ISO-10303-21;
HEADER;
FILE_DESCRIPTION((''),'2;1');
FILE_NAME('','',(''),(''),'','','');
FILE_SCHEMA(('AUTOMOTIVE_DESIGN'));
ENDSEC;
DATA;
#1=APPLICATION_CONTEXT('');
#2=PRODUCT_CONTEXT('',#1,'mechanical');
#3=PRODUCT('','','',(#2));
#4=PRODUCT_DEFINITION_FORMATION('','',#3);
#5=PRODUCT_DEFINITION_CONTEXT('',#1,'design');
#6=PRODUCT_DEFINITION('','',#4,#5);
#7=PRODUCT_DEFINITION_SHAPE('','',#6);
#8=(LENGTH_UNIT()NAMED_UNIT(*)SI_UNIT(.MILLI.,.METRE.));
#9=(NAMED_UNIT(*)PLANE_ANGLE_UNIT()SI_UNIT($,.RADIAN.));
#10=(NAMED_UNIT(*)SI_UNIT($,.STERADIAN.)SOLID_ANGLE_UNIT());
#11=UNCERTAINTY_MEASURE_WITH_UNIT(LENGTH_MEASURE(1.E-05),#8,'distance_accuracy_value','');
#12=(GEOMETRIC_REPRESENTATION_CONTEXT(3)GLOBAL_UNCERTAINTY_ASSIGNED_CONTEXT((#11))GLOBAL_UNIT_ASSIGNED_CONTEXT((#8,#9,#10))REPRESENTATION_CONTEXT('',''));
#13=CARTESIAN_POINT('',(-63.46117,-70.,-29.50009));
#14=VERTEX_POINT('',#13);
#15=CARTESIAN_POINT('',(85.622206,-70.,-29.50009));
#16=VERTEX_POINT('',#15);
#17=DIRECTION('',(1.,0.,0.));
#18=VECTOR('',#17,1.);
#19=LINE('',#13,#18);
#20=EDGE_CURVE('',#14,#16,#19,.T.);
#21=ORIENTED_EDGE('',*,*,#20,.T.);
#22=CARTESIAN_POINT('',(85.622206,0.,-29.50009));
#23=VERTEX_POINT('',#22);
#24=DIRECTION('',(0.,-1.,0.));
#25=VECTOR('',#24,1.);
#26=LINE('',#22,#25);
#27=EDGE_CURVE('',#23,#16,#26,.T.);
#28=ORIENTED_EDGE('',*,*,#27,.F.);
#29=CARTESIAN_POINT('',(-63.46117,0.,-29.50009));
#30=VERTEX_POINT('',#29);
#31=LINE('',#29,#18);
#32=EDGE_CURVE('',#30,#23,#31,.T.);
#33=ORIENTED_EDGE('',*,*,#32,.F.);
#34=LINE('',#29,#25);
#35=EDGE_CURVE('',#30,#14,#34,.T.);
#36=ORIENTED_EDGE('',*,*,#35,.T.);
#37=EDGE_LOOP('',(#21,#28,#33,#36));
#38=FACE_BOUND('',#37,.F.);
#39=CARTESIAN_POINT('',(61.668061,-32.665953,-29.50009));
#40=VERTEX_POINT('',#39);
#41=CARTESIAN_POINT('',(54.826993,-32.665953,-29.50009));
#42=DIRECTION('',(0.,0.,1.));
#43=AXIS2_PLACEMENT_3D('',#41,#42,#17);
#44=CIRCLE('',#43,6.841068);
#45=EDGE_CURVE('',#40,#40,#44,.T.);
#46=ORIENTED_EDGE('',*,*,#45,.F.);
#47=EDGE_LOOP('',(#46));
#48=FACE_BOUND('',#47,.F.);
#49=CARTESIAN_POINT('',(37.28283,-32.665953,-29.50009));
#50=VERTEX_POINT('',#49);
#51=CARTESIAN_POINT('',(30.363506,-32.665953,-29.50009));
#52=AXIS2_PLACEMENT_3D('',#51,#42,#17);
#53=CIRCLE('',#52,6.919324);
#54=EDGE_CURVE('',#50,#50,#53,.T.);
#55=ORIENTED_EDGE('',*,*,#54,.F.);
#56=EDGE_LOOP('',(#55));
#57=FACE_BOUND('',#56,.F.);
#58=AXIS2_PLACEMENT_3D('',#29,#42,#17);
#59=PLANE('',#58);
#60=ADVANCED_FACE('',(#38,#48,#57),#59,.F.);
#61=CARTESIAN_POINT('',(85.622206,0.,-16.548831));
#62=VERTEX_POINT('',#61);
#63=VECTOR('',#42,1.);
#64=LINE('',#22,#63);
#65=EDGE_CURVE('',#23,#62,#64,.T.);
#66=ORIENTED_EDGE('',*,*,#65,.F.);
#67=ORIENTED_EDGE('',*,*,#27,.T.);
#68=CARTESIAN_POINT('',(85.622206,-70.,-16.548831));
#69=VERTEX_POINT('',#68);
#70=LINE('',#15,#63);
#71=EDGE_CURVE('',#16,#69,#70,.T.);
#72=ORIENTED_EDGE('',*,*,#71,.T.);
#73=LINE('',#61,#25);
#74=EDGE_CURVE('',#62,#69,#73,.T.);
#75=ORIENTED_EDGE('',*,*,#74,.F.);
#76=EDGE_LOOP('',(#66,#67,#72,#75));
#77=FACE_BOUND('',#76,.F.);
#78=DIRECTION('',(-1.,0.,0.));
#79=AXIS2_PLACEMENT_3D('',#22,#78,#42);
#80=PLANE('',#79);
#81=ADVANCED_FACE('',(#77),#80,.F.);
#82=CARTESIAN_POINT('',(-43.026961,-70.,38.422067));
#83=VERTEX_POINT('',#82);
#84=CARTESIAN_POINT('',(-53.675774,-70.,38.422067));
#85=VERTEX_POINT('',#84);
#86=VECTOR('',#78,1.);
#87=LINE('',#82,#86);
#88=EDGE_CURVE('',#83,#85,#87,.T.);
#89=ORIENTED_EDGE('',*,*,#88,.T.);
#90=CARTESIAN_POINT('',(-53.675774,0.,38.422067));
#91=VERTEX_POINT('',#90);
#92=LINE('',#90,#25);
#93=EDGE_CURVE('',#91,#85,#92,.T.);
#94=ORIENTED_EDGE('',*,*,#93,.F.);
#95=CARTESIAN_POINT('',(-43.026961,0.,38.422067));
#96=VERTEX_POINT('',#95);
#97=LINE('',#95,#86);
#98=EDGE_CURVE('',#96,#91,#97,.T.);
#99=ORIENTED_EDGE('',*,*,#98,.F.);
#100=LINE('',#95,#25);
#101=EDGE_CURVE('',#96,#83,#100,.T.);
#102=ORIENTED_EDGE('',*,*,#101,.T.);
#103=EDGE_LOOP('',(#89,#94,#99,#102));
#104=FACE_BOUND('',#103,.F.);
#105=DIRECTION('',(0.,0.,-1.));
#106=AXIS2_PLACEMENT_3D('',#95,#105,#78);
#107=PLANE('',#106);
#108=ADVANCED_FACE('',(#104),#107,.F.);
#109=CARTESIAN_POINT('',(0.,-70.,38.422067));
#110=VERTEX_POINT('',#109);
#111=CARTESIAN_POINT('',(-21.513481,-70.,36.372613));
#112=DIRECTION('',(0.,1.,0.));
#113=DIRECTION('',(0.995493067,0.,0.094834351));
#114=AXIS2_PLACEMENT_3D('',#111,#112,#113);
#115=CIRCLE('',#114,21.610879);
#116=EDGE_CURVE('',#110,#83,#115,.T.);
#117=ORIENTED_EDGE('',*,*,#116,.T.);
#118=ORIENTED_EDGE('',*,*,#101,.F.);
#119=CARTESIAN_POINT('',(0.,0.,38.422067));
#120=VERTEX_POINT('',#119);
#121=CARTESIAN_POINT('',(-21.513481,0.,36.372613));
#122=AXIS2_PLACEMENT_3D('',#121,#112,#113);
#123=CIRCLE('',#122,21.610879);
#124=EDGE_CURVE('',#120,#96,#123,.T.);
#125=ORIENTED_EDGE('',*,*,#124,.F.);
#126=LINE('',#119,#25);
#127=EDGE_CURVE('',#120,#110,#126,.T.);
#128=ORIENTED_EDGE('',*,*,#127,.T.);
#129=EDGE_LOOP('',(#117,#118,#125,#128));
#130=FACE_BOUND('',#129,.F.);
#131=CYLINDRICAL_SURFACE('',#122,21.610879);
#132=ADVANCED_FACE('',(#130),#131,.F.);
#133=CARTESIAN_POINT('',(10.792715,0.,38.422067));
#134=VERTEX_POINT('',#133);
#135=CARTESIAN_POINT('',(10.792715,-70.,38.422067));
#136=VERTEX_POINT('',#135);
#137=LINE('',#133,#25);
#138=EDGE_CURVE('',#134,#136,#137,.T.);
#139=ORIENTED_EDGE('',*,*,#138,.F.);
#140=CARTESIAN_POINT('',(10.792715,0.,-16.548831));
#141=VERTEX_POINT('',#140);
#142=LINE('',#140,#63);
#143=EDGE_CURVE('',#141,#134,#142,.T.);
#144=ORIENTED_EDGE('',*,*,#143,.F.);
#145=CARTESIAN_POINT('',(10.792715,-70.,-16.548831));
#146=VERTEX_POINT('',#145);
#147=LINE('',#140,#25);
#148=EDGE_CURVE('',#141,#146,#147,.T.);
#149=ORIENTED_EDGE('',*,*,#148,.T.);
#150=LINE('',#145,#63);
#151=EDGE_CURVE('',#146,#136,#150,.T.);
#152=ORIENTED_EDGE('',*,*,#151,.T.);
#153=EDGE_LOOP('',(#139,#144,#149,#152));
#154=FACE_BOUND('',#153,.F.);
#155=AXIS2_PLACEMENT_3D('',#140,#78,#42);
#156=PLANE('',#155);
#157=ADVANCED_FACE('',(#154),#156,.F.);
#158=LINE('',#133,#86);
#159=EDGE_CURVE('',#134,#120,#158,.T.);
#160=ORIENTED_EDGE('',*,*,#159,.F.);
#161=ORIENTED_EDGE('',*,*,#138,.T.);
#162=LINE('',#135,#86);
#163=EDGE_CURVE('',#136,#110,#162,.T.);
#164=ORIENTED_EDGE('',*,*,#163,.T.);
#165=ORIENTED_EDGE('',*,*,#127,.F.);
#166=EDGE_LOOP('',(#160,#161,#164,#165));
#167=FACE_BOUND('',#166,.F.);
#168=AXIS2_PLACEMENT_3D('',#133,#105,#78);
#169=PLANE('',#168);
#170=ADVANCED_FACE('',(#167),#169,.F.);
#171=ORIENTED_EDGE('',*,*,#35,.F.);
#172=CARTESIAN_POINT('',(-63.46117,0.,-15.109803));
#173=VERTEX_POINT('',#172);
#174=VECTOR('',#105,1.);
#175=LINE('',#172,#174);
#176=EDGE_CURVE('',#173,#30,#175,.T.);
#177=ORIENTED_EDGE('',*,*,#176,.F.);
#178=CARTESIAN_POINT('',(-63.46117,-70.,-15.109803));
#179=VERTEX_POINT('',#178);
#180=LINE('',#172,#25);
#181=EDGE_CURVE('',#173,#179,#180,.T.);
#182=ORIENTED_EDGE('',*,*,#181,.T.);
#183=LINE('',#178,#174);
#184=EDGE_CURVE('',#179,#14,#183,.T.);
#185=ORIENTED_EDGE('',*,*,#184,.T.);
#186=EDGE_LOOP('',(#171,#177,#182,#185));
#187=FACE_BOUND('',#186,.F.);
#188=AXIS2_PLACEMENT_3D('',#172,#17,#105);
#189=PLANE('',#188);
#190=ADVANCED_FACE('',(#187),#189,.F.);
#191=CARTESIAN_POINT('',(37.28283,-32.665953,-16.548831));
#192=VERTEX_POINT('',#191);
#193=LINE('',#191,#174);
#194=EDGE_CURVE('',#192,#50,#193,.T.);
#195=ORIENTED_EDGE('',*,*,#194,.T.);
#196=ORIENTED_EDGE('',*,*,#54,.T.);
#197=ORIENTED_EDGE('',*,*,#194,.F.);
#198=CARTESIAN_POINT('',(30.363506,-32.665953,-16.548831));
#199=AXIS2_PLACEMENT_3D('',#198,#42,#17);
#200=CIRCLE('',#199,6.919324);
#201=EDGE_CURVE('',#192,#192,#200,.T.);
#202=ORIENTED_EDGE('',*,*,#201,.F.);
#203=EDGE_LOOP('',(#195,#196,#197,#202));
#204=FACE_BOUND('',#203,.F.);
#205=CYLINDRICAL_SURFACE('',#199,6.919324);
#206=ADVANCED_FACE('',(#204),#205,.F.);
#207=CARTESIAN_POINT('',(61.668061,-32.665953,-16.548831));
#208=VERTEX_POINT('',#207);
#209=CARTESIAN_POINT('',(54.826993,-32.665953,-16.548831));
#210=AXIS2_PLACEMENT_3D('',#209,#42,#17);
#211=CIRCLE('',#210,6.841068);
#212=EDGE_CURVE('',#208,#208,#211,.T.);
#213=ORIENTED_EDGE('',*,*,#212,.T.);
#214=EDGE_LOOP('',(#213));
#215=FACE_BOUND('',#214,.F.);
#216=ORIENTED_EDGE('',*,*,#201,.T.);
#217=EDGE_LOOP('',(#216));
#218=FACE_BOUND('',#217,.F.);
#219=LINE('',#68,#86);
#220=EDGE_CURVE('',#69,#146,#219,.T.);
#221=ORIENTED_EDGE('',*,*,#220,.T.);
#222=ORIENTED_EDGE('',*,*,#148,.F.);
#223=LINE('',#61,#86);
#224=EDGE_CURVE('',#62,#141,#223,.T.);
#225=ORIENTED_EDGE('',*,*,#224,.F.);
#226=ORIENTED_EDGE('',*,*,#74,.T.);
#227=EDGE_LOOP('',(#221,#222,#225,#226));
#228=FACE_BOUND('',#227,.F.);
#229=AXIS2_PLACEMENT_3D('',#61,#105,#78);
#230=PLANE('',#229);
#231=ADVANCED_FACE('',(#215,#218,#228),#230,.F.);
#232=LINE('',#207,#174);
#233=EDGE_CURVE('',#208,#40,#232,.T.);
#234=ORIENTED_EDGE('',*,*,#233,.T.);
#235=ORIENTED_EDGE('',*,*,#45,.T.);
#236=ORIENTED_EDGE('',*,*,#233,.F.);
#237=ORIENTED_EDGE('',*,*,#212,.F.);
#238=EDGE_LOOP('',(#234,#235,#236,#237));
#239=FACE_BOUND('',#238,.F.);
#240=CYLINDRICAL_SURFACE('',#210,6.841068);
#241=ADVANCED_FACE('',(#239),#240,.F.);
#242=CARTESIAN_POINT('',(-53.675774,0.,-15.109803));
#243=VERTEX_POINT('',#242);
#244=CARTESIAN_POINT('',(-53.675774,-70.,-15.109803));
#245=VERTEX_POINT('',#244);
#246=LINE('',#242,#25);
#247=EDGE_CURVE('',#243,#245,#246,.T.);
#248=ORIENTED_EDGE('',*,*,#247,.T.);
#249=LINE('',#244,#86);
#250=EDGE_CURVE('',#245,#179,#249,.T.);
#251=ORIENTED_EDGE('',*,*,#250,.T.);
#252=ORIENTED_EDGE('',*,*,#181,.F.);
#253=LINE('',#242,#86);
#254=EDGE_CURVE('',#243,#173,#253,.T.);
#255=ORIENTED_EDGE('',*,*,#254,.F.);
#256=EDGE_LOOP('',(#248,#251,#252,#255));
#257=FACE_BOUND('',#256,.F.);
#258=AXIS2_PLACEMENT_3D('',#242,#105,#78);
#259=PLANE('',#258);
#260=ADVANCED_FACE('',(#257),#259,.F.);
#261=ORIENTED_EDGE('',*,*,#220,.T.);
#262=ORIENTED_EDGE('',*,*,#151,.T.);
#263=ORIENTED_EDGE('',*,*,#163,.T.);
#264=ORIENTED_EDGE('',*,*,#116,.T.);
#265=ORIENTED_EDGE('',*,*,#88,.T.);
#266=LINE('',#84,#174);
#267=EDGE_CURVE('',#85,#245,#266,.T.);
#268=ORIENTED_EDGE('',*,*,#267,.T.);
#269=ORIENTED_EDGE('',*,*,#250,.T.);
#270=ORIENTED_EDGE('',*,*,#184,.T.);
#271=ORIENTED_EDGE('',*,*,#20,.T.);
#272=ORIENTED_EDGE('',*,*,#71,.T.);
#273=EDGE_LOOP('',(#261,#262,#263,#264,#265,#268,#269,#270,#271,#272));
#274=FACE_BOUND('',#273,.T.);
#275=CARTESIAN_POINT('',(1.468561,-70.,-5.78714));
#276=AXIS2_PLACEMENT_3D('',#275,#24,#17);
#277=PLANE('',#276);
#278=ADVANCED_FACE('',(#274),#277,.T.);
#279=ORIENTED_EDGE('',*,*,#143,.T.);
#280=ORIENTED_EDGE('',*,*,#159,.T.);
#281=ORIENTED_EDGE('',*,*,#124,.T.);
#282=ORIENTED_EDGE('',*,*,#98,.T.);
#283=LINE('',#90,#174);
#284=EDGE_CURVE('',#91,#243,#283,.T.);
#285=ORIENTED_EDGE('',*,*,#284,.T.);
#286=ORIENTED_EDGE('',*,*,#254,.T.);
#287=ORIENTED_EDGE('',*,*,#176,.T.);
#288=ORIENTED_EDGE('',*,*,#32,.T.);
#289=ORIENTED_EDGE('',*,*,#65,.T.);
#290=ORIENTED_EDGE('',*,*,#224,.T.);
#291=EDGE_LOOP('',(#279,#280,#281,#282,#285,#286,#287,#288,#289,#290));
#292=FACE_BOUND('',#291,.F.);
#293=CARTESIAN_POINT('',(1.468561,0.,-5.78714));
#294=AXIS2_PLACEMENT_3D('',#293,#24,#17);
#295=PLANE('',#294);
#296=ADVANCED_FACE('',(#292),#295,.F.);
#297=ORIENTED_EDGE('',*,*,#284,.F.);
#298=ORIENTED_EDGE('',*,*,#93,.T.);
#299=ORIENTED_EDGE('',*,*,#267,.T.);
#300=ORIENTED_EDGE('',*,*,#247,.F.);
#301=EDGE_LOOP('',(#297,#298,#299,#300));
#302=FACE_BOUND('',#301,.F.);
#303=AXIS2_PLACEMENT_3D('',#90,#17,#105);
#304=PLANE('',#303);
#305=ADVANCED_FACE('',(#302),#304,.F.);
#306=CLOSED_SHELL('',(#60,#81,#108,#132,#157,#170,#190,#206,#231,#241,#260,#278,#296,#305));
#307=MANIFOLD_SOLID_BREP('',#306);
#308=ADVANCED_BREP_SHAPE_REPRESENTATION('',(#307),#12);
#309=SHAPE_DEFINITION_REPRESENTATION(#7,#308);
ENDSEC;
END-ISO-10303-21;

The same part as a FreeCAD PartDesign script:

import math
import FreeCAD as App
import Part
import Sketcher
Q = App.Units.Quantity

doc = App.newDocument("Part")
params = doc.addObject("Spreadsheet::Sheet", "Params")
for row, (alias, value) in enumerate([
    ("pad1_length", "70 mm"),
    ("pocket1_length", "25 mm"),
], start=1):
    params.set(f"A{row}", alias)
    params.set(f"B{row}", "=" + value)
    params.setAlias(f"B{row}", alias)

body = doc.addObject("PartDesign::Body", "Body")

sketch1 = body.newObject("Sketcher::SketchObject", "Sketch")
sketch1.AttachmentSupport = (doc.getObject("XZ_Plane"), [""])
sketch1.MapMode = "FlatFace"
sketch1.addGeometry([
    Part.ArcOfCircle(Part.Circle(App.Vector(-21.513481, 36.372613, 0), App.Vector(0, 0, 1), 21.610879), math.radians(174.558214), math.radians(365.441786)),
    Part.LineSegment(App.Vector(-43.026961, 38.422067, 0), App.Vector(-53.675774, 38.422067, 0)),
    Part.LineSegment(App.Vector(-53.675774, 38.422067, 0), App.Vector(-53.675774, -15.109803, 0)),
    Part.LineSegment(App.Vector(-53.675774, -15.109803, 0), App.Vector(-63.46117, -15.109803, 0)),
    Part.LineSegment(App.Vector(-63.46117, -15.109803, 0), App.Vector(-63.46117, -29.50009, 0)),
    Part.LineSegment(App.Vector(-63.46117, -29.50009, 0), App.Vector(85.622206, -29.50009, 0)),
    Part.LineSegment(App.Vector(85.622206, -29.50009, 0), App.Vector(85.622206, -16.548831, 0)),
    Part.LineSegment(App.Vector(85.622206, -16.548831, 0), App.Vector(10.792715, -16.548831, 0)),
    Part.LineSegment(App.Vector(10.792715, -16.548831, 0), App.Vector(10.792715, 38.422067, 0)),
    Part.LineSegment(App.Vector(10.792715, 38.422067, 0), App.Vector(0, 38.422067, 0)),
], False)
sketch1.addConstraint([
    Sketcher.Constraint("Coincident", 0, 1, 1, 1),
    Sketcher.Constraint("Coincident", 1, 2, 2, 1),
    Sketcher.Constraint("Coincident", 2, 2, 3, 1),
    Sketcher.Constraint("Coincident", 3, 2, 4, 1),
    Sketcher.Constraint("Coincident", 4, 2, 5, 1),
    Sketcher.Constraint("Coincident", 5, 2, 6, 1),
    Sketcher.Constraint("Coincident", 6, 2, 7, 1),
    Sketcher.Constraint("Coincident", 7, 2, 8, 1),
    Sketcher.Constraint("Coincident", 8, 2, 9, 1),
    Sketcher.Constraint("Coincident", 9, 2, 0, 2),
    Sketcher.Constraint("Horizontal", 1),
    Sketcher.Constraint("Vertical", 2),
    Sketcher.Constraint("Horizontal", 3),
    Sketcher.Constraint("Vertical", 4),
    Sketcher.Constraint("Horizontal", 5),
    Sketcher.Constraint("Vertical", 6),
    Sketcher.Constraint("Horizontal", 7),
    Sketcher.Constraint("Vertical", 8),
    Sketcher.Constraint("Horizontal", 9),
    Sketcher.Constraint("PointOnObject", 9, 2, -2),
    Sketcher.Constraint("Horizontal", 1, 2, 8, 2),
    Sketcher.Constraint("Radius", 0, Q("21.610879 mm")),
    Sketcher.Constraint("DistanceX", 7, 2, 7, 1, Q("74.829491 mm")),
    Sketcher.Constraint("DistanceY", 2, 2, 2, 1, Q("53.53187 mm")),
    Sketcher.Constraint("DistanceY", 6, 1, 6, 2, Q("12.951259 mm")),
    Sketcher.Constraint("DistanceY", 6, 2, 0, 1, Q("54.970898 mm")),
    Sketcher.Constraint("DistanceX", 1, 2, 1, 1, Q("10.648813 mm")),
    Sketcher.Constraint("DistanceX", 3, 2, 3, 1, Q("9.785396 mm")),
    Sketcher.Constraint("DistanceX", 5, 1, 5, 2, Q("149.083376 mm")),
    Sketcher.Constraint("DistanceX", 9, 2, 9, 1, Q("10.792715 mm")),
    Sketcher.Constraint("DistanceY", 4, 2, -1, 1, Q("29.50009 mm")),
])
pad1 = body.newObject("PartDesign::Pad", "Pad")
pad1.Profile = sketch1
pad1.setExpression("Length", "Params.pad1_length")

sketch2 = body.newObject("Sketcher::SketchObject", "Sketch001")
sketch2.AttachmentSupport = (doc.getObject("XY_Plane"), [""])
sketch2.MapMode = "FlatFace"
sketch2.AttachmentOffset = App.Placement(App.Vector(0, 0, -16.548831), App.Rotation())
sketch2.addGeometry([
    Part.Circle(App.Vector(30.363506, -32.665953, 0), App.Vector(0, 0, 1), 6.919324),
    Part.Circle(App.Vector(54.826993, -32.665953, 0), App.Vector(0, 0, 1), 6.841068),
], False)
sketch2.addConstraint([
    Sketcher.Constraint("Horizontal", 0, 3, 1, 3),
    Sketcher.Constraint("Diameter", 0, Q("13.838648 mm")),
    Sketcher.Constraint("Diameter", 1, Q("13.682136 mm")),
    Sketcher.Constraint("DistanceX", -1, 1, 0, 3, Q("30.363506 mm")),
    Sketcher.Constraint("DistanceY", 0, 3, -1, 1, Q("32.665953 mm")),
    Sketcher.Constraint("DistanceX", -1, 1, 1, 3, Q("54.826993 mm")),
])
pocket1 = body.newObject("PartDesign::Pocket", "Pocket")
pocket1.Profile = sketch2
pocket1.setExpression("Length", "Params.pocket1_length")

doc.recompute()
